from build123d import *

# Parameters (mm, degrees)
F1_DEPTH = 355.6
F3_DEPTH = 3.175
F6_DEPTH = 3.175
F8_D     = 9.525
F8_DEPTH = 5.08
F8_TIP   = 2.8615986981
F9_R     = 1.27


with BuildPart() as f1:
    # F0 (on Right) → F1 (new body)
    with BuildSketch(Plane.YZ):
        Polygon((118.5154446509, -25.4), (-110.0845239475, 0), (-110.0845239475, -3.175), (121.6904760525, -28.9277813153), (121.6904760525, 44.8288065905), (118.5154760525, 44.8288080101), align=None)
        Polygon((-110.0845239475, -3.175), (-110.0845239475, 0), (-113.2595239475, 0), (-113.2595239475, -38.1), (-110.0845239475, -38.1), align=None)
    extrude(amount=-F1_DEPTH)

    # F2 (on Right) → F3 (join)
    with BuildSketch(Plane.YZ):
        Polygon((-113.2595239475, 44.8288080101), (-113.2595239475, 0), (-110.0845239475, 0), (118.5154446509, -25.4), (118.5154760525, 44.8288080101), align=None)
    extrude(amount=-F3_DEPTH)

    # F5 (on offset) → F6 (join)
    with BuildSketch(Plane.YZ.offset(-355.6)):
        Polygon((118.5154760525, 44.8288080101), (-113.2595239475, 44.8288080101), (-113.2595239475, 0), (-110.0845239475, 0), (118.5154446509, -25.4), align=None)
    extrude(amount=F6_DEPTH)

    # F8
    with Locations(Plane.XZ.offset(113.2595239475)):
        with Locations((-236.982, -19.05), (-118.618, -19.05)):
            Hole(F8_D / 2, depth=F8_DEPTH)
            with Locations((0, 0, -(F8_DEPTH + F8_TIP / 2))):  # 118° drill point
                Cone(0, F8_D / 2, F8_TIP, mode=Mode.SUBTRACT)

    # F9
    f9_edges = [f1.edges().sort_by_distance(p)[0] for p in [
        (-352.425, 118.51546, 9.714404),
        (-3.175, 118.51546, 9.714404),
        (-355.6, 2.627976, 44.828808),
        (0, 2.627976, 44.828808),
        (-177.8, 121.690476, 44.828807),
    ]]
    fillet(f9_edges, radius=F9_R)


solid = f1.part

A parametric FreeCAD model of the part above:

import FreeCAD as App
import Part
import Sketcher

V = App.Vector
Q = App.Units.Quantity


def edges_at(feature, points):
    """Names of the edges that pass closest to the given points."""
    edges = feature.Shape.Edges
    near = lambda p: min(range(len(edges)), key=lambda i: edges[i].distToShape(Part.Vertex(*p))[0])
    return sorted({f"Edge{near(p) + 1}" for p in points})


def add_polygon(sketch, points):
    """Adds a closed chain of lines whose ends are joined by coincident constraints."""
    first, n = sketch.GeometryCount, len(points)
    for a, b in zip(points, points[1:] + points[:1]):
        sketch.addGeometry(Part.LineSegment(App.Vector(*a, 0), App.Vector(*b, 0)), False)
    for i in range(n):
        sketch.addConstraint(Sketcher.Constraint("Coincident", first + i, 2, first + (i + 1) % n, 1))

doc = App.newDocument("Part")
body = doc.addObject("PartDesign::Body", "Body")

# Sketch on YZ plane
sketch1 = body.newObject("Sketcher::SketchObject", "Sketch")
sketch1.AttachmentSupport = (doc.getObject("YZ_Plane"), [""])
sketch1.MapMode = "FlatFace"
add_polygon(sketch1, [(118.5, -25.4), (-110.1, 0), (-113.3, 0), (-113.3, -38.1), (-110.1, -38.1), (-110.1, -3.2), (121.7, -28.9), (121.7, 44.8), (118.5, 44.8)])  # lines 0-8
sketch1.addConstraint(Sketcher.Constraint("Horizontal", 1))
sketch1.addConstraint(Sketcher.Constraint("Vertical", 2))
sketch1.addConstraint(Sketcher.Constraint("Horizontal", 3))
sketch1.addConstraint(Sketcher.Constraint("Vertical", 4))
sketch1.addConstraint(Sketcher.Constraint("Vertical", 6))
sketch1.addConstraint(Sketcher.Constraint("Horizontal", 7))
sketch1.addConstraint(Sketcher.Constraint("PointOnObject", 0, 2, -1))
sketch1.addConstraint(Sketcher.Constraint("Parallel", 0, 5))
sketch1.addConstraint(Sketcher.Constraint("Vertical", 0, 2, 3, 2))
sketch1.addConstraint(Sketcher.Constraint("Equal", 3, 7))
sketch1.addConstraint(Sketcher.Constraint("DistanceY", 2, 2, 2, 1, Q("1.5 in")))
sketch1.addConstraint(Sketcher.Constraint("DistanceY", 8, 2, -1, 1, Q("1 in")))
sketch1.addConstraint(Sketcher.Constraint("DistanceX", 0, 2, 7, 2, Q("9 in")))
sketch1.addConstraint(Sketcher.Constraint("DistanceX", 1, 2, 1, 1, Q("0.125 in")))
sketch1.addConstraint(Sketcher.Constraint("DistanceY", 4, 1, 4, 2, Q("1.375 in")))
sketch1.addConstraint(Sketcher.Constraint("Distance", 0, Q("230.006751 mm")))
sketch1.addConstraint(Sketcher.Constraint("Distance", 8, Q("70.228808 mm")))
sketch1.addConstraint(Sketcher.Constraint("DistanceX", 0, 2, -1, 1, Q("110.084524 mm")))
pad1 = body.newObject("PartDesign::Pad", "Pad")
pad1.Profile = sketch1
pad1.Length = Q("14 in")
pad1.Reversed = True

# Sketch on YZ plane
sketch2 = body.newObject("Sketcher::SketchObject", "Sketch001")
sketch2.AttachmentSupport = (doc.getObject("YZ_Plane"), [""])
sketch2.MapMode = "FlatFace"
add_polygon(sketch2, [(-113.3, 44.8), (-113.3, 0), (-110.1, 0), (118.5, -25.4), (118.5, 44.8)])  # lines 0-4
sketch2.addConstraint(Sketcher.Constraint("Vertical", 0))
sketch2.addConstraint(Sketcher.Constraint("Horizontal", 1))
sketch2.addConstraint(Sketcher.Constraint("Horizontal", 4))
sketch2.addConstraint(Sketcher.Constraint("PointOnObject", 0, 2, -1))
sketch2.addConstraint(Sketcher.Constraint("DistanceY", 2, 2, -1, 1, Q("1 in")))
sketch2.addConstraint(Sketcher.Constraint("DistanceX", 1, 2, 3, 2, Q("9 in")))
sketch2.addConstraint(Sketcher.Constraint("DistanceX", 1, 1, 1, 2, Q("0.125 in")))
sketch2.addConstraint(Sketcher.Constraint("DistanceY", 0, 2, 0, 1, Q("44.828808 mm")))
sketch2.addConstraint(Sketcher.Constraint("Distance", 2, Q("230.006751 mm")))
sketch2.addConstraint(Sketcher.Constraint("DistanceX", 0, 2, -1, 1, Q("113.259524 mm")))
pad2 = body.newObject("PartDesign::Pad", "Pad001")
pad2.Profile = sketch2
pad2.Length = Q("0.125 in")
pad2.Reversed = True

# Sketch on YZ plane
sketch3 = body.newObject("Sketcher::SketchObject", "Sketch002")
sketch3.AttachmentSupport = (doc.getObject("YZ_Plane"), [""])
sketch3.MapMode = "FlatFace"
sketch3.AttachmentOffset = App.Placement(V(0, 0, -14 * 25.4), App.Rotation())
add_polygon(sketch3, [(118.5, 44.8), (-113.3, 44.8), (-113.3, 0), (-110.1, 0), (118.5, -25.4)])  # lines 0-4
sketch3.addConstraint(Sketcher.Constraint("Horizontal", 0))
sketch3.addConstraint(Sketcher.Constraint("Vertical", 1))
sketch3.addConstraint(Sketcher.Constraint("Horizontal", 2))
sketch3.addConstraint(Sketcher.Constraint("PointOnObject", 1, 2, -1))
sketch3.addConstraint(Sketcher.Constraint("DistanceY", 3, 2, -1, 1, Q("1 in")))
sketch3.addConstraint(Sketcher.Constraint("DistanceX", 2, 2, 4, 2, Q("9 in")))
sketch3.addConstraint(Sketcher.Constraint("DistanceX", 0, 2, 0, 1, Q("9.125 in")))
sketch3.addConstraint(Sketcher.Constraint("DistanceY", 1, 2, 1, 1, Q("44.828808 mm")))
sketch3.addConstraint(Sketcher.Constraint("Distance", 3, Q("230.006751 mm")))
sketch3.addConstraint(Sketcher.Constraint("DistanceX", 0, 2, -1, 1, Q("113.259524 mm")))
pad3 = body.newObject("PartDesign::Pad", "Pad002")
pad3.Profile = sketch3
pad3.Length = Q("0.125 in")

# Sketch on XZ plane
sketch4 = body.newObject("Sketcher::SketchObject", "Sketch003")
sketch4.AttachmentSupport = (doc.getObject("XZ_Plane"), [""])
sketch4.MapMode = "FlatFace"
sketch4.AttachmentOffset = App.Placement(V(0, 0, 113.259524), App.Rotation())
sketch4.addGeometry(Part.Circle(V(-237, -19.1, 0), V(0, 0, 1), 4.8), False)
sketch4.addGeometry(Part.Circle(V(-118.6, -19.1, 0), V(0, 0, 1), 4.8), False)
sketch4.addConstraint(Sketcher.Constraint("Equal", 0, 1))
sketch4.addConstraint(Sketcher.Constraint("Horizontal", 0, 3, 1, 3))
sketch4.addConstraint(Sketcher.Constraint("Diameter", 0, Q("0.375 in")))
sketch4.addConstraint(Sketcher.Constraint("DistanceX", 0, 3, -1, 1, Q("9.33 in")))
sketch4.addConstraint(Sketcher.Constraint("DistanceY", 0, 3, -1, 1, Q("0.75 in")))
sketch4.addConstraint(Sketcher.Constraint("DistanceX", 1, 3, -1, 1, Q("4.67 in")))
doc.recompute()
hole = body.newObject("PartDesign::Hole", "Hole")
hole.Profile = sketch4
hole.ThreadType = "None"
hole.Diameter = Q("0.375 in")
hole.DepthType = "Dimension"
hole.Depth = Q("0.2 in")
hole.DrillPoint = "Angled"
hole.DrillPointAngle = 118
doc.recompute()

fillet = body.newObject("PartDesign::Fillet", "Fillet")
fillet.Base = (hole, edges_at(hole, [
    (-352.425, 118.515, 9.714),
    (-3.175, 118.515, 9.714),
    (-355.6, 2.628, 44.829),
    (0, 2.628, 44.829),
    (-177.8, 121.69, 44.829),
]))
fillet.Radius = Q("0.05 in")

doc.recompute()
